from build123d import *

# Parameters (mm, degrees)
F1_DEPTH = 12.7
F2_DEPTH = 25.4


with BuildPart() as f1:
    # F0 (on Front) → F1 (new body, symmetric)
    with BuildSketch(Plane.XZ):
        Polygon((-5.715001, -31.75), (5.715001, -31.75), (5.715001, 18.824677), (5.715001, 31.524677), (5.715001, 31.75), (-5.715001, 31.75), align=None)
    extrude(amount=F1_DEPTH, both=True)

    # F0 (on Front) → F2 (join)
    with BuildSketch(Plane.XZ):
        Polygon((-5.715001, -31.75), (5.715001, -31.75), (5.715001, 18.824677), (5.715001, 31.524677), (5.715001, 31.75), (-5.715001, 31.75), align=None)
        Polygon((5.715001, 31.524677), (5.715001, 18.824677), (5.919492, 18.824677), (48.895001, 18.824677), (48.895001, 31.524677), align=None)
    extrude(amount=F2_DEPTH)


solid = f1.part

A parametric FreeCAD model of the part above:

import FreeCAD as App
import Part
import Sketcher
from FreeCAD import Vector
Q = App.Units.Quantity

doc = App.newDocument("Part")
params = doc.addObject("Spreadsheet::Sheet", "Params")
for row, (alias, value) in enumerate([
    ("sketch1_height", "2.5 in"),
    ("sketch1_width", "0.4500001 in"),
    ("pad1_length", "1 in"),
    ("sketch2_width", "1.7 in"),
    ("sketch2_height", "0.5 in"),
    ("sketch2_height2", "2.5 in"),
    ("sketch2_width2", "0.4500001 in"),
    ("pad2_length", "1 in"),
], start=1):
    params.set(f"A{row}", alias)
    params.set(f"B{row}", "=" + value)
    params.setAlias(f"B{row}", alias)

body = doc.addObject("PartDesign::Body", "Body")

sketch1 = body.newObject("Sketcher::SketchObject", "Sketch")
sketch1.AttachmentSupport = (doc.getObject("XZ_Plane"), [""])
sketch1.MapMode = "FlatFace"
sketch1.addGeometry([
    Part.LineSegment(Vector(-6, -32, 0), Vector(6, -32, 0)),
    Part.LineSegment(Vector(6, -32, 0), Vector(6, 32, 0)),
    Part.LineSegment(Vector(6, 32, 0), Vector(-6, 32, 0)),
    Part.LineSegment(Vector(-6, 32, 0), Vector(-6, -32, 0)),
], False)
sketch1.addConstraint([
    Sketcher.Constraint("Coincident", 0, 2, 1, 1),
    Sketcher.Constraint("Coincident", 1, 2, 2, 1),
    Sketcher.Constraint("Coincident", 2, 2, 3, 1),
    Sketcher.Constraint("Coincident", 3, 2, 0, 1),
    Sketcher.Constraint("Horizontal", 0),
    Sketcher.Constraint("Vertical", 1),
    Sketcher.Constraint("Horizontal", 2),
    Sketcher.Constraint("Vertical", 3),
    Sketcher.Constraint("Symmetric", 0, 2, 2, 2, -1, 1),
    Sketcher.Constraint("DistanceY", 1, 1, 1, 2, Q("2.5 in")),
    Sketcher.Constraint("DistanceX", 0, 1, 0, 2, Q("0.4500001 in")),
])
sketch1.setExpression("Constraints[9]", "Params.sketch1_height")
sketch1.setExpression("Constraints[10]", "Params.sketch1_width")
pad1 = body.newObject("PartDesign::Pad", "Pad")
pad1.Profile = sketch1
pad1.setExpression("Length", "Params.pad1_length")
pad1.Midplane = True

sketch2 = body.newObject("Sketcher::SketchObject", "Sketch001")
sketch2.AttachmentSupport = (doc.getObject("XZ_Plane"), [""])
sketch2.MapMode = "FlatFace"
sketch2.addGeometry([
    Part.LineSegment(Vector(-5.72, -31.75, 0), Vector(5.72, -31.75, 0)),
    Part.LineSegment(Vector(5.72, -31.75, 0), Vector(5.72, 18.82, 0)),
    Part.LineSegment(Vector(5.72, 18.82, 0), Vector(48.9, 18.82, 0)),
    Part.LineSegment(Vector(48.9, 18.82, 0), Vector(48.9, 31.52, 0)),
    Part.LineSegment(Vector(48.9, 31.52, 0), Vector(5.72, 31.52, 0)),
    Part.LineSegment(Vector(5.72, 31.52, 0), Vector(5.72, 31.75, 0)),
    Part.LineSegment(Vector(5.72, 31.75, 0), Vector(-5.72, 31.75, 0)),
    Part.LineSegment(Vector(-5.72, 31.75, 0), Vector(-5.72, -31.75, 0)),
], False)
sketch2.addConstraint([
    Sketcher.Constraint("Coincident", 0, 2, 1, 1),
    Sketcher.Constraint("Coincident", 1, 2, 2, 1),
    Sketcher.Constraint("Coincident", 2, 2, 3, 1),
    Sketcher.Constraint("Coincident", 3, 2, 4, 1),
    Sketcher.Constraint("Coincident", 4, 2, 5, 1),
    Sketcher.Constraint("Coincident", 5, 2, 6, 1),
    Sketcher.Constraint("Coincident", 6, 2, 7, 1),
    Sketcher.Constraint("Coincident", 7, 2, 0, 1),
    Sketcher.Constraint("Horizontal", 0),
    Sketcher.Constraint("Vertical", 1),
    Sketcher.Constraint("Horizontal", 2),
    Sketcher.Constraint("Vertical", 3),
    Sketcher.Constraint("Horizontal", 4),
    Sketcher.Constraint("Vertical", 5),
    Sketcher.Constraint("Horizontal", 6),
    Sketcher.Constraint("Vertical", 7),
    Sketcher.Constraint("Symmetric", 0, 2, 6, 2, -1, 1),
    Sketcher.Constraint("Vertical", 1, 2, 4, 2),
    Sketcher.Constraint("DistanceX", 2, 1, 2, 2, Q("1.7 in")),
    Sketcher.Constraint("DistanceY", 3, 1, 3, 2, Q("0.5 in")),
    Sketcher.Constraint("DistanceY", 7, 2, 7, 1, Q("2.5 in")),
    Sketcher.Constraint("DistanceX", 0, 1, 0, 2, Q("0.4500001 in")),
    Sketcher.Constraint("DistanceY", 1, 1, 1, 2, Q("50.574677 mm")),
])
sketch2.setExpression("Constraints[18]", "Params.sketch2_width")
sketch2.setExpression("Constraints[19]", "Params.sketch2_height")
sketch2.setExpression("Constraints[20]", "Params.sketch2_height2")
sketch2.setExpression("Constraints[21]", "Params.sketch2_width2")
pad2 = body.newObject("PartDesign::Pad", "Pad001")
pad2.Profile = sketch2
pad2.setExpression("Length", "Params.pad2_length")

doc.recompute()
